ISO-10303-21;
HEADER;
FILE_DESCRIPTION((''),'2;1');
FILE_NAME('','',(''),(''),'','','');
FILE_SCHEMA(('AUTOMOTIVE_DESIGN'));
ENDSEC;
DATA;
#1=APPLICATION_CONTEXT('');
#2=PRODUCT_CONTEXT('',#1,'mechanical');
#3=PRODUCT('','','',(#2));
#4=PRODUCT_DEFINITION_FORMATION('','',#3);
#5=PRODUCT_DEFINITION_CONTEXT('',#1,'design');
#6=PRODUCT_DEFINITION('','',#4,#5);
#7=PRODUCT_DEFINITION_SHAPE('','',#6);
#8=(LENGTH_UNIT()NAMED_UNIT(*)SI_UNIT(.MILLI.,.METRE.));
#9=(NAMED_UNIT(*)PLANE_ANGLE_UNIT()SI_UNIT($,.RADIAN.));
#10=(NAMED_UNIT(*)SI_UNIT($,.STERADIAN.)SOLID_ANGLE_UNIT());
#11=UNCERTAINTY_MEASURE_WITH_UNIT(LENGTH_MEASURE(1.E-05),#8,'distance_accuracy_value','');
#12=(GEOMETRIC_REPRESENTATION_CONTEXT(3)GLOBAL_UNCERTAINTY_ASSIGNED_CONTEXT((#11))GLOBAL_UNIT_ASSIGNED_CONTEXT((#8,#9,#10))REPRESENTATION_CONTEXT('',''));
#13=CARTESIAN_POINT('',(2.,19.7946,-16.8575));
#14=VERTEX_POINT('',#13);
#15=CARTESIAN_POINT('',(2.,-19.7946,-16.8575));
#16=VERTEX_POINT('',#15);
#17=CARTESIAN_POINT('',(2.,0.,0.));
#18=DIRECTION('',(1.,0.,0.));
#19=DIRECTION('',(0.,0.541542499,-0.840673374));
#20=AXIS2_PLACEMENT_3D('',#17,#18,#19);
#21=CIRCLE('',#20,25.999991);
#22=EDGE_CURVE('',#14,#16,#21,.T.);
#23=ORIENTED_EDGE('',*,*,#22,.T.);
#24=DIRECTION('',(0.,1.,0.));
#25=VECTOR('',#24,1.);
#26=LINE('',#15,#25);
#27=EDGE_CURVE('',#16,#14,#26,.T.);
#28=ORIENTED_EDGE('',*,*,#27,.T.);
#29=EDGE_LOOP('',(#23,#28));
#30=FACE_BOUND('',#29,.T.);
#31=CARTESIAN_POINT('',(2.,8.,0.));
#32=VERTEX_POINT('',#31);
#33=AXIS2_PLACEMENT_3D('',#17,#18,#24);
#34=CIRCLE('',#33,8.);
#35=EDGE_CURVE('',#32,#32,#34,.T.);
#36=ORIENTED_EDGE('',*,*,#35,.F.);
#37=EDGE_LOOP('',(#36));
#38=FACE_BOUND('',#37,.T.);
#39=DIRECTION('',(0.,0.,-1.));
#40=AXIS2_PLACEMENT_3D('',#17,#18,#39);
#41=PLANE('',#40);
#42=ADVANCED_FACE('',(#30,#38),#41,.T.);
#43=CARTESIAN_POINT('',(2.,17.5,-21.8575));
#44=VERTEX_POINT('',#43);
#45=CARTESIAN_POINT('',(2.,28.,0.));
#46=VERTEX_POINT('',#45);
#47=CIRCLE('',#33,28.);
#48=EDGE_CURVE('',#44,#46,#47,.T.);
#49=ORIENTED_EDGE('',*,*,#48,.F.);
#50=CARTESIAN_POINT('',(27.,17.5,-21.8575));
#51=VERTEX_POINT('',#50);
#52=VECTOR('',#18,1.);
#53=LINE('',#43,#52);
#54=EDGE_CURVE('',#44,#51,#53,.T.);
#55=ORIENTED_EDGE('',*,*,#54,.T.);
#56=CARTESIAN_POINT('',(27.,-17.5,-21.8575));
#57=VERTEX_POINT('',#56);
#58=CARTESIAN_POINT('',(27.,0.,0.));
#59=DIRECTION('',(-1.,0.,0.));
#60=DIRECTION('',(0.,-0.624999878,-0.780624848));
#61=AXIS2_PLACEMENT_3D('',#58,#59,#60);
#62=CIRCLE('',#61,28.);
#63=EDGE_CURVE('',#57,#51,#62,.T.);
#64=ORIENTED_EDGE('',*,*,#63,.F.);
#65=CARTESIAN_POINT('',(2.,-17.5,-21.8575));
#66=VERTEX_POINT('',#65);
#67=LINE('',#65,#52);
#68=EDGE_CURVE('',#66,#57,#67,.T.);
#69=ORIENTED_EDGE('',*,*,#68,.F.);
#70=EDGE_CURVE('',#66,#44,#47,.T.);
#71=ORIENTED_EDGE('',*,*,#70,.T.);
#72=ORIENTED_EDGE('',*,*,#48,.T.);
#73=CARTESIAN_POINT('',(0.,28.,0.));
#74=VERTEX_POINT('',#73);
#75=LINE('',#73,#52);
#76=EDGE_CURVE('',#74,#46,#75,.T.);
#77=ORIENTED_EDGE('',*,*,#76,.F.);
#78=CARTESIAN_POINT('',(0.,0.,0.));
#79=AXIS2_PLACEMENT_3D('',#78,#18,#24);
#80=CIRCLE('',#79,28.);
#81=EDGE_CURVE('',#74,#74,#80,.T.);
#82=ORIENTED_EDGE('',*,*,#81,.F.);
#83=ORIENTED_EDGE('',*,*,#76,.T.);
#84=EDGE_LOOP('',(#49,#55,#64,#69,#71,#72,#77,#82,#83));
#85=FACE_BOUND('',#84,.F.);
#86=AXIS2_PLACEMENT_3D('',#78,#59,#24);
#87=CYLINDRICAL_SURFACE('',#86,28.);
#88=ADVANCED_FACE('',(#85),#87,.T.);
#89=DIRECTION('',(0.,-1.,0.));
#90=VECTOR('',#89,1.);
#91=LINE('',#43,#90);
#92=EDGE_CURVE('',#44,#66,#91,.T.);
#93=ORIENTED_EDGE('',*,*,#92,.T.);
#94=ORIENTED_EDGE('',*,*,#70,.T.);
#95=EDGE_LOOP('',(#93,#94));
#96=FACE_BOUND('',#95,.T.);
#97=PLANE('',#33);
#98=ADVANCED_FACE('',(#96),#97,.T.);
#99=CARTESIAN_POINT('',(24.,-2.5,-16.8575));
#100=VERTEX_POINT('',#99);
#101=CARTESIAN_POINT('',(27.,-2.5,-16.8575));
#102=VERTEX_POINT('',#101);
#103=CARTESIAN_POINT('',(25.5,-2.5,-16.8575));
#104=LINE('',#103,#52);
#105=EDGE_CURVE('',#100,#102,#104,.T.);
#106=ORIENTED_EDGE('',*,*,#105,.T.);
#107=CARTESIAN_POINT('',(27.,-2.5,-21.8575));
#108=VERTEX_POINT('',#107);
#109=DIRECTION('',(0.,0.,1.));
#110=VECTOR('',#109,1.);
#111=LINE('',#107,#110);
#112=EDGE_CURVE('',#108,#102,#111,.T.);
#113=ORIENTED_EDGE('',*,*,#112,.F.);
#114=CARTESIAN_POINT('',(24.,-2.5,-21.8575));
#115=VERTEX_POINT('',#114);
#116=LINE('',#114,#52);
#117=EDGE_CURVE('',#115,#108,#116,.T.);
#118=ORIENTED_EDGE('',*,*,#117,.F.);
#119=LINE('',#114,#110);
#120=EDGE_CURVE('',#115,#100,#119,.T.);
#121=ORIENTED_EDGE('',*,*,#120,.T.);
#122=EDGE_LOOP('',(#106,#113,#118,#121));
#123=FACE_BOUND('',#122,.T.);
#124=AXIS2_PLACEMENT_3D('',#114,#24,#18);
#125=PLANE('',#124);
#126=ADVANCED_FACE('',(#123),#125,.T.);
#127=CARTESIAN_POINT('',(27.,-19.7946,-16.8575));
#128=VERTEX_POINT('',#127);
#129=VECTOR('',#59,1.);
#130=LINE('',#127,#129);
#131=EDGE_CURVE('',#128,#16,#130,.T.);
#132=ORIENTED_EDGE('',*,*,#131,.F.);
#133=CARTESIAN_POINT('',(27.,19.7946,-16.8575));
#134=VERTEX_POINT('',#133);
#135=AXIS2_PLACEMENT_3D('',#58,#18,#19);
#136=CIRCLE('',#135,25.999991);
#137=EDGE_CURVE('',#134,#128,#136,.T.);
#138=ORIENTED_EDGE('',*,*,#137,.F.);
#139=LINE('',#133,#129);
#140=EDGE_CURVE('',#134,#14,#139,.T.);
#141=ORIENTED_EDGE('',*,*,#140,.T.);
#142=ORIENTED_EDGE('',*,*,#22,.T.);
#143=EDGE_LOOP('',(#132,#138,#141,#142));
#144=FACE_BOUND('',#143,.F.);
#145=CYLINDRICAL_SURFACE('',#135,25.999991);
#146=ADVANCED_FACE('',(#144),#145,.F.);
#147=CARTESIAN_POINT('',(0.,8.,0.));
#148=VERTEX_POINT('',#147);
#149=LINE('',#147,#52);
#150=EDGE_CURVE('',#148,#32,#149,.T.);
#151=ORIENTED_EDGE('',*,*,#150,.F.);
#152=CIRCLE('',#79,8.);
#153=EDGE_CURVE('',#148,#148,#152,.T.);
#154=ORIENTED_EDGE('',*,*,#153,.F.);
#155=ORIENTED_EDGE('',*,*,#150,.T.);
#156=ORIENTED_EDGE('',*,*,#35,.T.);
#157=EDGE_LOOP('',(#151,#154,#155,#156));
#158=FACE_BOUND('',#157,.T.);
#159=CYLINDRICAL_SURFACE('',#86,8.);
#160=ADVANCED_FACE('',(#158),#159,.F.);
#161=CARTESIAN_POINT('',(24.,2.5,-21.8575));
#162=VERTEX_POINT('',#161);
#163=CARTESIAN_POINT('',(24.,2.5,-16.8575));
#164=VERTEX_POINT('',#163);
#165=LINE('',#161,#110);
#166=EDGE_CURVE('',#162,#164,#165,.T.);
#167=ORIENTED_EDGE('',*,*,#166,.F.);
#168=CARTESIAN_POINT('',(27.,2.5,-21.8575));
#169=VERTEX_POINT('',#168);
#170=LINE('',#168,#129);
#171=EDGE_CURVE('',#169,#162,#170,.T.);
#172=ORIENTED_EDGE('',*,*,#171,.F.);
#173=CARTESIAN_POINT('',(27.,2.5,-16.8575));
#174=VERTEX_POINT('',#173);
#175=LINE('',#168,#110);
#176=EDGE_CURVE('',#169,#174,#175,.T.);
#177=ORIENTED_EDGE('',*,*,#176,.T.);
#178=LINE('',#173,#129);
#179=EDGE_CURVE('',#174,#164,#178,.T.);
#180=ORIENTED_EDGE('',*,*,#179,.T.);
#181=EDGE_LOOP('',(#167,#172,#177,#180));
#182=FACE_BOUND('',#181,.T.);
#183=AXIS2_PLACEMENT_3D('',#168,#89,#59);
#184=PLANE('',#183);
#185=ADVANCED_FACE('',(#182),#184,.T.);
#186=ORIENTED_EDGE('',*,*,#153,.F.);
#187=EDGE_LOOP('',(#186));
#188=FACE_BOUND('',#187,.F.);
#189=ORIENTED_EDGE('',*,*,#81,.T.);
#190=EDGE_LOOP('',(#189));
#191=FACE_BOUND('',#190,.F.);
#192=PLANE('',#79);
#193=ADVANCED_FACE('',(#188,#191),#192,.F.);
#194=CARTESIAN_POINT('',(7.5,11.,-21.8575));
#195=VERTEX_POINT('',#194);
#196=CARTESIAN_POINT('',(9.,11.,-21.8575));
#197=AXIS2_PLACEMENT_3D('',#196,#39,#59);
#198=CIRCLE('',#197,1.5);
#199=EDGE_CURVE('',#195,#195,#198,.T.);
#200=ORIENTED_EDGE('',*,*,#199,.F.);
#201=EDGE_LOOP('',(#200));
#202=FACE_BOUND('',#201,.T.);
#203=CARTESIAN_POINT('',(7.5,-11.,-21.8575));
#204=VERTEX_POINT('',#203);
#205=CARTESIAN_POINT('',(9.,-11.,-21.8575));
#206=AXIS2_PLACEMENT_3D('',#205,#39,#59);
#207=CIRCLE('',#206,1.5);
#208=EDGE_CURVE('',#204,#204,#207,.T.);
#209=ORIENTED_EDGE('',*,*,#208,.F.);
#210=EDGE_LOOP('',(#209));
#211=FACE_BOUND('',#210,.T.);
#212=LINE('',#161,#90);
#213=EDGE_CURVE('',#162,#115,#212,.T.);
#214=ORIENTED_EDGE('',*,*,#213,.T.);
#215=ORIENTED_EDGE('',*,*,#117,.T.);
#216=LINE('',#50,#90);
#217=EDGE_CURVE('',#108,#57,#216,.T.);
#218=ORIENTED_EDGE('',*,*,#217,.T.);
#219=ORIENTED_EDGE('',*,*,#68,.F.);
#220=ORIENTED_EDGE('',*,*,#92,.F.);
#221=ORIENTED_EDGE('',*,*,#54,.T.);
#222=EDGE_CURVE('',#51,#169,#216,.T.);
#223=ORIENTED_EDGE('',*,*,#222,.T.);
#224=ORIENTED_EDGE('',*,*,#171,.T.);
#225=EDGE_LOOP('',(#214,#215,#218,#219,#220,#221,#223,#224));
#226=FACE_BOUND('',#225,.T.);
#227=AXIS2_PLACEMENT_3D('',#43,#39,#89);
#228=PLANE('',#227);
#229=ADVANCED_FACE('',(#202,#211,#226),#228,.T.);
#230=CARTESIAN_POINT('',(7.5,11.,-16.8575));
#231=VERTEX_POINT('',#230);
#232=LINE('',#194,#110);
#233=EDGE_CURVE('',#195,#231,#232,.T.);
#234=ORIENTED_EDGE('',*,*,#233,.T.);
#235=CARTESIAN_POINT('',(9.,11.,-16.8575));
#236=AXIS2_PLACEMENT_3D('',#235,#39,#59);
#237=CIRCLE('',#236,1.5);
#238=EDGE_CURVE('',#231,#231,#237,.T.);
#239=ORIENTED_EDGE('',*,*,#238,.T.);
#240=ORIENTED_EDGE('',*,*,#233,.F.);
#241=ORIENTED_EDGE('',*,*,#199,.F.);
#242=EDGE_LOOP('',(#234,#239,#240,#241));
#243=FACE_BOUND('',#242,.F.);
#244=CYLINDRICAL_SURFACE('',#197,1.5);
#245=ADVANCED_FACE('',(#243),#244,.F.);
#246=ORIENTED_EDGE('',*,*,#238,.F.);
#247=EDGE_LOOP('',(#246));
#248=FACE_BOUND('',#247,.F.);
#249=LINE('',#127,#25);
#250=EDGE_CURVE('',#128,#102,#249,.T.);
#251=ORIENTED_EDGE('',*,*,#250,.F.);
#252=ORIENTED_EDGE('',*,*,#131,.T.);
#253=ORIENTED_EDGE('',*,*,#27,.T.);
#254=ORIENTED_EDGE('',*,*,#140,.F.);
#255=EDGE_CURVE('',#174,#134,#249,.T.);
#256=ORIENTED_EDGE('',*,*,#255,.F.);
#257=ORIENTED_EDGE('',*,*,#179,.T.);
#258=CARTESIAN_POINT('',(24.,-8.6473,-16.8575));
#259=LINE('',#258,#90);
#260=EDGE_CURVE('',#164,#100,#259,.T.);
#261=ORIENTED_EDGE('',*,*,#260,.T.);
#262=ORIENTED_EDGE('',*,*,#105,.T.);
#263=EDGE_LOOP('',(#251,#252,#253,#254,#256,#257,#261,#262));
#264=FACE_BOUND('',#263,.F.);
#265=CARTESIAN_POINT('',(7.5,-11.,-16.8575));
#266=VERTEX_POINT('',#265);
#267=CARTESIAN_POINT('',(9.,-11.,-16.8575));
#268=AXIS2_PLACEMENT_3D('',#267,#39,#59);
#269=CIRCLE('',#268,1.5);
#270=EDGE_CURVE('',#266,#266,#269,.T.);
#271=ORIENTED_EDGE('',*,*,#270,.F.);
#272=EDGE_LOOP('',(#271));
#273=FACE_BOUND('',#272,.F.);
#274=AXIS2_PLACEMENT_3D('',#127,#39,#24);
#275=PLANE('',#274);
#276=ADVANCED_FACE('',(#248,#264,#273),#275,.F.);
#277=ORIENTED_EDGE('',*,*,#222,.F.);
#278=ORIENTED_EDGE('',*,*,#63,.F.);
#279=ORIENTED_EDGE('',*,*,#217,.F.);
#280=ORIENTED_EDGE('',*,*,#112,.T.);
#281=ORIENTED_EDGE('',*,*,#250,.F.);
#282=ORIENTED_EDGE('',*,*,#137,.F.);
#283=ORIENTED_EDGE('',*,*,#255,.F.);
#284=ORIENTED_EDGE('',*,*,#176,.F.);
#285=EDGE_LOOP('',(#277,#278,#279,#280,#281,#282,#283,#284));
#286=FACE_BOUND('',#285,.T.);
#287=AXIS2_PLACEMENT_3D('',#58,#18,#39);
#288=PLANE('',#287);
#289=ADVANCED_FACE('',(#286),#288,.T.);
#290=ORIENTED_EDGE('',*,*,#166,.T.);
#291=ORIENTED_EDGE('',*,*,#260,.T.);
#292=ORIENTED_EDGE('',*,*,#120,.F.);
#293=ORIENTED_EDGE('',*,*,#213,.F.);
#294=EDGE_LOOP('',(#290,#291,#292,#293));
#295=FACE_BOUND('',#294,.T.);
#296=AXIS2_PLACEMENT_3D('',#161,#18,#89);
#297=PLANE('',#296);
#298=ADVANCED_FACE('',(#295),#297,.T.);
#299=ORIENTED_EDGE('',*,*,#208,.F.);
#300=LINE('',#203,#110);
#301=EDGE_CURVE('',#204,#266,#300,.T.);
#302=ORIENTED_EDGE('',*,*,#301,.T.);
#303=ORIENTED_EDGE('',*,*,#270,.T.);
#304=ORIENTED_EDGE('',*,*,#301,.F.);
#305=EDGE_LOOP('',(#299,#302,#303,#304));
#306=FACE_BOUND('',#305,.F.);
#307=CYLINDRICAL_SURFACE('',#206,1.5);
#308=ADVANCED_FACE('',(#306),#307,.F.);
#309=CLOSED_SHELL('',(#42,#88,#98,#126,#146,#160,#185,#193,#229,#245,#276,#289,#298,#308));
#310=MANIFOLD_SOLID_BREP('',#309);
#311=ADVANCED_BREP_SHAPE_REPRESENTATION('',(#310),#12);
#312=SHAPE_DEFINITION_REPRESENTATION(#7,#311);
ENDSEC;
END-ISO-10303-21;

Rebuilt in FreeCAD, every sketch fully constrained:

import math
import FreeCAD as App
import Part
import Sketcher
from FreeCAD import Vector
Q = App.Units.Quantity

doc = App.newDocument("Part")
body = doc.addObject("PartDesign::Body", "Body")

sketch1 = body.newObject("Sketcher::SketchObject", "Sketch")
sketch1.AttachmentSupport = (doc.getObject("YZ_Plane"), [""])
sketch1.MapMode = "FlatFace"
sketch1.addGeometry([
    Part.Circle(Vector(0, 0, 0), Vector(0, 0, 1), 28),
    Part.Circle(Vector(0, 0, 0), Vector(0, 0, 1), 8),
], False)
sketch1.addConstraint([
    Sketcher.Constraint("Coincident", 0, 3, -1, 1),
    Sketcher.Constraint("Coincident", 1, 3, -1, 1),
    Sketcher.Constraint("Diameter", 0, Q("56 mm")),
    Sketcher.Constraint("Diameter", 1, Q("16 mm")),
])
pad1 = body.newObject("PartDesign::Pad", "Pad")
pad1.Profile = sketch1
pad1.Length = 2

sketch2 = body.newObject("Sketcher::SketchObject", "Sketch001")
sketch2.AttachmentSupport = (doc.getObject("YZ_Plane"), [""])
sketch2.MapMode = "FlatFace"
sketch2.AttachmentOffset = App.Placement(Vector(0, 0, 2), App.Rotation())
sketch2.addGeometry([
    Part.LineSegment(Vector(-18, -22, 0), Vector(18, -22, 0)),
    Part.ArcOfCircle(Part.Circle(Vector(0, 0, 0), Vector(0, 0, 1), 28), math.radians(-51), math.radians(231)),
], False)
sketch2.addConstraint([
    Sketcher.Constraint("Coincident", 0, 1, 1, 2),
    Sketcher.Constraint("Coincident", 1, 1, 0, 2),
    Sketcher.Constraint("Horizontal", 0),
    Sketcher.Constraint("Coincident", 1, 3, -1, 1),
    Sketcher.Constraint("DistanceX", 0, 1, 0, 2, Q("35 mm")),
    Sketcher.Constraint("Radius", 1, Q("28 mm")),
])
pad2 = body.newObject("PartDesign::Pad", "Pad001")
pad2.Profile = sketch2
pad2.Length = 25

sketch3 = body.newObject("Sketcher::SketchObject", "Sketch002")
sketch3.AttachmentSupport = (doc.getObject("YZ_Plane"), [""])
sketch3.MapMode = "FlatFace"
sketch3.AttachmentOffset = App.Placement(Vector(0, 0, 27), App.Rotation())
sketch3.addGeometry([
    Part.LineSegment(Vector(-20, -17, 0), Vector(20, -17, 0)),
    Part.ArcOfCircle(Part.Circle(Vector(0, 0, 0), Vector(0, 0, 1), 26), math.radians(-40), math.radians(220)),
], False)
sketch3.addConstraint([
    Sketcher.Constraint("Coincident", 0, 1, 1, 2),
    Sketcher.Constraint("Coincident", 1, 1, 0, 2),
    Sketcher.Constraint("Horizontal", 0),
    Sketcher.Constraint("Coincident", 1, 3, -1, 1),
    Sketcher.Constraint("Radius", 1, Q("26 mm")),
    Sketcher.Constraint("DistanceX", 0, 1, 0, 2, Q("39.5892 mm")),
])
pocket1 = body.newObject("PartDesign::Pocket", "Pocket")
pocket1.Profile = sketch3
pocket1.Length = 25

sketch4 = body.newObject("Sketcher::SketchObject", "Sketch003")
sketch4.AttachmentSupport = (doc.getObject("XY_Plane"), [""])
sketch4.MapMode = "FlatFace"
sketch4.AttachmentOffset = App.Placement(Vector(0, 0, -21.8575), App.Rotation())
sketch4.addGeometry([
    Part.LineSegment(Vector(27, 2.5, 0), Vector(27, -2.5, 0)),
    Part.LineSegment(Vector(27, -2.5, 0), Vector(24, -2.5, 0)),
    Part.LineSegment(Vector(24, -2.5, 0), Vector(24, 2.5, 0)),
    Part.LineSegment(Vector(24, 2.5, 0), Vector(27, 2.5, 0)),
], False)
sketch4.addConstraint([
    Sketcher.Constraint("Coincident", 0, 2, 1, 1),
    Sketcher.Constraint("Coincident", 1, 2, 2, 1),
    Sketcher.Constraint("Coincident", 2, 2, 3, 1),
    Sketcher.Constraint("Coincident", 3, 2, 0, 1),
    Sketcher.Constraint("Vertical", 0),
    Sketcher.Constraint("Horizontal", 1),
    Sketcher.Constraint("Vertical", 2),
    Sketcher.Constraint("Horizontal", 3),
    Sketcher.Constraint("DistanceX", 1, 2, 1, 1, Q("3 mm")),
    Sketcher.Constraint("DistanceY", 0, 2, 0, 1, Q("5 mm")),
    Sketcher.Constraint("DistanceX", -1, 1, 0, 2, Q("27 mm")),
    Sketcher.Constraint("DistanceY", 0, 2, -1, 1, Q("2.5 mm")),
])
pocket2 = body.newObject("PartDesign::Pocket", "Pocket001")
pocket2.Profile = sketch4
pocket2.Length = 25
pocket2.Reversed = True

sketch5 = body.newObject("Sketcher::SketchObject", "Sketch004")
sketch5.AttachmentSupport = (doc.getObject("XY_Plane"), [""])
sketch5.MapMode = "FlatFace"
sketch5.AttachmentOffset = App.Placement(Vector(0, 0, -21.8575), App.Rotation())
sketch5.addGeometry([
    Part.Circle(Vector(9, -11, 0), Vector(0, 0, 1), 1.5),
    Part.Circle(Vector(9, 11, 0), Vector(0, 0, 1), 1.5),
], False)
sketch5.addConstraint([
    Sketcher.Constraint("Equal", 0, 1),
    Sketcher.Constraint("Symmetric", 0, 3, 1, 3, -1),
    Sketcher.Constraint("Diameter", 0, Q("3 mm")),
    Sketcher.Constraint("DistanceX", -1, 1, 0, 3, Q("9 mm")),
    Sketcher.Constraint("DistanceY", 0, 3, -1, 1, Q("11 mm")),
])
pocket3 = body.newObject("PartDesign::Pocket", "Pocket002")
pocket3.Profile = sketch5
pocket3.Length = 25
pocket3.Reversed = True

doc.recompute()
